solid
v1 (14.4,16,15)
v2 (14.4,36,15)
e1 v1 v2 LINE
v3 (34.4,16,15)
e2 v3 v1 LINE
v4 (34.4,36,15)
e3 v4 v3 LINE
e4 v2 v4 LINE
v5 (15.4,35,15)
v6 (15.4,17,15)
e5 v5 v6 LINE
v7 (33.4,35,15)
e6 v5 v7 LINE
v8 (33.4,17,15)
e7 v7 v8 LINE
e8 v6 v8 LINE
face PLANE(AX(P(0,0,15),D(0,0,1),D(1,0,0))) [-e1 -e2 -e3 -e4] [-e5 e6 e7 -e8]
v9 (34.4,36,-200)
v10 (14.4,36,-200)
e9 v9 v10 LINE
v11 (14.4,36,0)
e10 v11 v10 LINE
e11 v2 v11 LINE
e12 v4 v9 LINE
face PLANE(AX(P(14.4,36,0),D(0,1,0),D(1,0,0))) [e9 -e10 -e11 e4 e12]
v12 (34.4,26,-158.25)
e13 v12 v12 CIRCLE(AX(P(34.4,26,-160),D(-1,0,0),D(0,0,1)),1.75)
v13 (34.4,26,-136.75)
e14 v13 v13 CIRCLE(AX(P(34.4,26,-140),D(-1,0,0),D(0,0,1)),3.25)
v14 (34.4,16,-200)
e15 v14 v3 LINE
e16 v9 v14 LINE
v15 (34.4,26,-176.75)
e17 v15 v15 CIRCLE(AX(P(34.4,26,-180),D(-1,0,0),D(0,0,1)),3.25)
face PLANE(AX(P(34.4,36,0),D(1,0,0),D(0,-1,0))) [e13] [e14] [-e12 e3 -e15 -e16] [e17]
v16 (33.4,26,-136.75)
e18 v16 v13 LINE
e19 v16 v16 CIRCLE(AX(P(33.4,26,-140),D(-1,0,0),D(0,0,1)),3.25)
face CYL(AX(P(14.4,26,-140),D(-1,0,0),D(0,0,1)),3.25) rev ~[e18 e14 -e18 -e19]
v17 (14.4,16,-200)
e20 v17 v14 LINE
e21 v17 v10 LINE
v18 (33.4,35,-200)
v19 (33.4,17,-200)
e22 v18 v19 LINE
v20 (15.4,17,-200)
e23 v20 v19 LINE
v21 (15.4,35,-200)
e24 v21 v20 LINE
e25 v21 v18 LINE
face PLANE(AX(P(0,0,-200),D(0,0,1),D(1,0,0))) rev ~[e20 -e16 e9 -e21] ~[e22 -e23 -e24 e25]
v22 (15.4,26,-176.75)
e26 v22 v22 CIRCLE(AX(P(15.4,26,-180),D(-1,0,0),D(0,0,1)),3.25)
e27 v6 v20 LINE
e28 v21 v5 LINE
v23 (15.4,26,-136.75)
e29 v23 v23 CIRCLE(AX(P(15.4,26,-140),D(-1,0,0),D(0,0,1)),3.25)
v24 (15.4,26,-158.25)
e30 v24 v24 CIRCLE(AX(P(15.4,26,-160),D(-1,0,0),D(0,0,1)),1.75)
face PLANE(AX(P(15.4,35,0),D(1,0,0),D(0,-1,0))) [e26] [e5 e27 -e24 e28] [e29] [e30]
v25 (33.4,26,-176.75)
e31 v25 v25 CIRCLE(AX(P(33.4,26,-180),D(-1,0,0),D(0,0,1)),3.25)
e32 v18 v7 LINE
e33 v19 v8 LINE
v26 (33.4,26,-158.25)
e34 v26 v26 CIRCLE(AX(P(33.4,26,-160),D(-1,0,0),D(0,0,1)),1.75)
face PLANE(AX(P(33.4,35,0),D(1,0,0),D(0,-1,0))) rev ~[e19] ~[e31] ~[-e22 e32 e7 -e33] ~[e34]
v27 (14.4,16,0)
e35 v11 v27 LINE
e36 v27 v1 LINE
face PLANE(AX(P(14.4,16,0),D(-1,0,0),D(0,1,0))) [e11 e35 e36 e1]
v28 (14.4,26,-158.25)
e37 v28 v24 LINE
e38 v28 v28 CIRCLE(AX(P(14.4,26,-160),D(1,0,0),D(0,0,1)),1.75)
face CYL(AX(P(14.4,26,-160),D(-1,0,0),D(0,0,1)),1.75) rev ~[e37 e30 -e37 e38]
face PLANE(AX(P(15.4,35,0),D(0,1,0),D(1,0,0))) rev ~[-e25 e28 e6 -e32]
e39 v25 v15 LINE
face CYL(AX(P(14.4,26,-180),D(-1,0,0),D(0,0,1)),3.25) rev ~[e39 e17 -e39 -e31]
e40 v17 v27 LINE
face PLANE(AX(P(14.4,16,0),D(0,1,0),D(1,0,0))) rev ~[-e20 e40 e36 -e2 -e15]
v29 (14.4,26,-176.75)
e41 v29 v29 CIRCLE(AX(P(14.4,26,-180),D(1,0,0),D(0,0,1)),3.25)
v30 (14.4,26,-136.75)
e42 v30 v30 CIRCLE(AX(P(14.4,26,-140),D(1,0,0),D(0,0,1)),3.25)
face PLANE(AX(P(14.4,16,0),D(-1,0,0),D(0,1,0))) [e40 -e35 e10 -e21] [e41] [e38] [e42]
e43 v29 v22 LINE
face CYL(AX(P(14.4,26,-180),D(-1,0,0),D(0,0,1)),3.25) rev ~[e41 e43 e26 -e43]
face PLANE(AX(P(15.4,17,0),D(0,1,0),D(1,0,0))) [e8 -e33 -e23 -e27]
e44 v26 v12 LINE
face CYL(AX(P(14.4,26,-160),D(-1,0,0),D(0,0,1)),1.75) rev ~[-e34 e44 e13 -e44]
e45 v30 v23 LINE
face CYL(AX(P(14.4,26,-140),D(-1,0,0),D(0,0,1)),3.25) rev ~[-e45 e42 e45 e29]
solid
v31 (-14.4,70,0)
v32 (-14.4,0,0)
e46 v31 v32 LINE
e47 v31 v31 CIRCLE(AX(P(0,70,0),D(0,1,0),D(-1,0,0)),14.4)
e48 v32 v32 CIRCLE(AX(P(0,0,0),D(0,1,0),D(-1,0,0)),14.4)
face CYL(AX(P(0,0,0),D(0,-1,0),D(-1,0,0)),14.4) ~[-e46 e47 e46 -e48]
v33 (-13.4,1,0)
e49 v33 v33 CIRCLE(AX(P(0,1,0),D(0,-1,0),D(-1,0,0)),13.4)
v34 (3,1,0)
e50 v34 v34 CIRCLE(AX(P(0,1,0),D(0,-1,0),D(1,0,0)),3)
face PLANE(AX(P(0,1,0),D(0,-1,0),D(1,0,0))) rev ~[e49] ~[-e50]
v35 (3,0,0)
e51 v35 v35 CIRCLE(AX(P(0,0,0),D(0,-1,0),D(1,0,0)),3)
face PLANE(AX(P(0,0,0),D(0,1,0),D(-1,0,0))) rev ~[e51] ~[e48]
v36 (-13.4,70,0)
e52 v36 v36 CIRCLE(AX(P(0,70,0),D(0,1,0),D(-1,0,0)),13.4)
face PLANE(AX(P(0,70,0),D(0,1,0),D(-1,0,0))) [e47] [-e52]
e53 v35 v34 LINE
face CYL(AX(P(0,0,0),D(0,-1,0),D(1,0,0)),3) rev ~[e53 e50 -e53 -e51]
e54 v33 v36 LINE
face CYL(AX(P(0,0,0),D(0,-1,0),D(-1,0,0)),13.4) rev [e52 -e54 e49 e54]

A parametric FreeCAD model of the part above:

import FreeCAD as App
import Part
import Sketcher
Q = App.Units.Quantity

doc = App.newDocument("Part")
body = doc.addObject("PartDesign::Body", "Body")
body.AllowCompound = True

# Sketch on XZ plane
sketch1 = body.newObject("Sketcher::SketchObject", "Sketch")
sketch1.AttachmentSupport = (doc.getObject("XZ_Plane"), [""])
sketch1.MapMode = "FlatFace"
sketch1.addGeometry(Part.Circle(App.Vector(0, 0, 0), App.Vector(0, 0, 1), 14), False)
sketch1.addGeometry(Part.Circle(App.Vector(0, 0, 0), App.Vector(0, 0, 1), 13), False)
sketch1.addConstraint(Sketcher.Constraint("Coincident", 0, 3, -1, 1))
sketch1.addConstraint(Sketcher.Constraint("Coincident", 1, 3, -1, 1))
sketch1.addConstraint(Sketcher.Constraint("Diameter", 0, Q("28.8 mm")))
sketch1.addConstraint(Sketcher.Constraint("Diameter", 1, Q("26.8 mm")))
pad1 = body.newObject("PartDesign::Pad", "Pad")
pad1.Profile = sketch1
pad1.Length = 70
pad1.Reversed = True

# Sketch on XZ plane
sketch2 = body.newObject("Sketcher::SketchObject", "Sketch001")
sketch2.AttachmentSupport = (doc.getObject("XZ_Plane"), [""])
sketch2.MapMode = "FlatFace"
sketch2.addGeometry(Part.Circle(App.Vector(0, 0, 0), App.Vector(0, 0, 1), 14), False)
sketch2.addConstraint(Sketcher.Constraint("Coincident", 0, 3, -1, 1))
sketch2.addConstraint(Sketcher.Constraint("Diameter", 0, Q("28.8 mm")))
pad2 = body.newObject("PartDesign::Pad", "Pad001")
pad2.Profile = sketch2
pad2.Length = 1
pad2.Reversed = True

# Sketch on XY plane
sketch3 = body.newObject("Sketcher::SketchObject", "Sketch002")
sketch3.AttachmentSupport = (doc.getObject("XY_Plane"), [""])
sketch3.MapMode = "FlatFace"
sketch3.addGeometry(Part.LineSegment(App.Vector(14, 36, 0), App.Vector(14, 16, 0)), False)
sketch3.addGeometry(Part.LineSegment(App.Vector(14, 16, 0), App.Vector(34, 16, 0)), False)
sketch3.addGeometry(Part.LineSegment(App.Vector(34, 16, 0), App.Vector(34, 36, 0)), False)
sketch3.addGeometry(Part.LineSegment(App.Vector(34, 36, 0), App.Vector(14, 36, 0)), False)
sketch3.addGeometry(Part.LineSegment(App.Vector(15, 17, 0), App.Vector(15, 35, 0)), False)
sketch3.addGeometry(Part.LineSegment(App.Vector(15, 35, 0), App.Vector(33, 35, 0)), False)
sketch3.addGeometry(Part.LineSegment(App.Vector(33, 35, 0), App.Vector(33, 17, 0)), False)
sketch3.addGeometry(Part.LineSegment(App.Vector(33, 17, 0), App.Vector(15, 17, 0)), False)
sketch3.addConstraint(Sketcher.Constraint("Coincident", 0, 2, 1, 1))
sketch3.addConstraint(Sketcher.Constraint("Coincident", 1, 2, 2, 1))
sketch3.addConstraint(Sketcher.Constraint("Coincident", 2, 2, 3, 1))
sketch3.addConstraint(Sketcher.Constraint("Coincident", 3, 2, 0, 1))
sketch3.addConstraint(Sketcher.Constraint("Coincident", 4, 2, 5, 1))
sketch3.addConstraint(Sketcher.Constraint("Coincident", 5, 2, 6, 1))
sketch3.addConstraint(Sketcher.Constraint("Coincident", 6, 2, 7, 1))
sketch3.addConstraint(Sketcher.Constraint("Coincident", 7, 2, 4, 1))
sketch3.addConstraint(Sketcher.Constraint("Vertical", 0))
sketch3.addConstraint(Sketcher.Constraint("Horizontal", 1))
sketch3.addConstraint(Sketcher.Constraint("Vertical", 2))
sketch3.addConstraint(Sketcher.Constraint("Horizontal", 3))
sketch3.addConstraint(Sketcher.Constraint("Vertical", 4))
sketch3.addConstraint(Sketcher.Constraint("Horizontal", 5))
sketch3.addConstraint(Sketcher.Constraint("Vertical", 6))
sketch3.addConstraint(Sketcher.Constraint("Horizontal", 7))
sketch3.addConstraint(Sketcher.Constraint("Equal", 3, 0))
sketch3.addConstraint(Sketcher.Constraint("Equal", 7, 4))
sketch3.addConstraint(Sketcher.Constraint("DistanceX", 1, 1, 1, 2, Q("20 mm")))
sketch3.addConstraint(Sketcher.Constraint("DistanceY", -1, 1, 0, 2, Q("16 mm")))
sketch3.addConstraint(Sketcher.Constraint("DistanceX", 3, 2, 4, 2, Q("1 mm")))
sketch3.addConstraint(Sketcher.Constraint("DistanceY", 4, 2, 3, 2, Q("1 mm")))
sketch3.addConstraint(Sketcher.Constraint("DistanceX", 5, 2, 2, 2, Q("1 mm")))
sketch3.addConstraint(Sketcher.Constraint("DistanceX", -1, 1, 0, 2, Q("14.4 mm")))
pad3 = body.newObject("PartDesign::Pad", "Pad002")
pad3.Profile = sketch3
pad3.Type = "TwoLengths"
pad3.Length = 15
pad3.Length2 = 200

# Sketch on XZ plane
sketch4 = body.newObject("Sketcher::SketchObject", "Sketch003")
sketch4.AttachmentSupport = (doc.getObject("XZ_Plane"), [""])
sketch4.MapMode = "FlatFace"
sketch4.addGeometry(Part.Circle(App.Vector(0, 0, 0), App.Vector(0, 0, 1), 3), False)
sketch4.addConstraint(Sketcher.Constraint("Coincident", 0, 3, -1, 1))
sketch4.addConstraint(Sketcher.Constraint("Diameter", 0, Q("6 mm")))
pocket1 = body.newObject("PartDesign::Pocket", "Pocket")
pocket1.Profile = sketch4
pocket1.Length = 15

# Sketch on YZ plane
sketch5 = body.newObject("Sketcher::SketchObject", "Sketch004")
sketch5.AttachmentSupport = (doc.getObject("YZ_Plane"), [""])
sketch5.MapMode = "FlatFace"
sketch5.AttachmentOffset = App.Placement(App.Vector(0, 0, 14.4), App.Rotation())
sketch5.addGeometry(Part.Circle(App.Vector(26, -180, 0), App.Vector(0, 0, 1), 3.2), False)
sketch5.addGeometry(Part.Circle(App.Vector(26, -140, 0), App.Vector(0, 0, 1), 3.2), False)
sketch5.addConstraint(Sketcher.Constraint("Equal", 0, 1))
sketch5.addConstraint(Sketcher.Constraint("Vertical", 0, 3, 1, 3))
sketch5.addConstraint(Sketcher.Constraint("Diameter", 0, Q("6.5 mm")))
sketch5.addConstraint(Sketcher.Constraint("DistanceY", 0, 3, 1, 3, Q("40 mm")))
sketch5.addConstraint(Sketcher.Constraint("DistanceX", -1, 1, 0, 3, Q("26 mm")))
sketch5.addConstraint(Sketcher.Constraint("DistanceY", 0, 3, -1, 1, Q("180 mm")))
pocket2 = body.newObject("PartDesign::Pocket", "Pocket001")
pocket2.Profile = sketch5
pocket2.Length = 30
pocket2.Reversed = True

# Sketch on YZ plane
sketch6 = body.newObject("Sketcher::SketchObject", "Sketch005")
sketch6.AttachmentSupport = (doc.getObject("YZ_Plane"), [""])
sketch6.MapMode = "FlatFace"
sketch6.AttachmentOffset = App.Placement(App.Vector(0, 0, 14.4), App.Rotation())
sketch6.addGeometry(Part.Circle(App.Vector(26, -160, 0), App.Vector(0, 0, 1), 1.8), False)
sketch6.addConstraint(Sketcher.Constraint("Diameter", 0, Q("3.5 mm")))
sketch6.addConstraint(Sketcher.Constraint("DistanceX", -1, 1, 0, 3, Q("26 mm")))
sketch6.addConstraint(Sketcher.Constraint("DistanceY", 0, 3, -1, 1, Q("160 mm")))
pocket3 = body.newObject("PartDesign::Pocket", "Pocket002")
pocket3.Profile = sketch6
pocket3.Length = 30
pocket3.Reversed = True

doc.recompute()
